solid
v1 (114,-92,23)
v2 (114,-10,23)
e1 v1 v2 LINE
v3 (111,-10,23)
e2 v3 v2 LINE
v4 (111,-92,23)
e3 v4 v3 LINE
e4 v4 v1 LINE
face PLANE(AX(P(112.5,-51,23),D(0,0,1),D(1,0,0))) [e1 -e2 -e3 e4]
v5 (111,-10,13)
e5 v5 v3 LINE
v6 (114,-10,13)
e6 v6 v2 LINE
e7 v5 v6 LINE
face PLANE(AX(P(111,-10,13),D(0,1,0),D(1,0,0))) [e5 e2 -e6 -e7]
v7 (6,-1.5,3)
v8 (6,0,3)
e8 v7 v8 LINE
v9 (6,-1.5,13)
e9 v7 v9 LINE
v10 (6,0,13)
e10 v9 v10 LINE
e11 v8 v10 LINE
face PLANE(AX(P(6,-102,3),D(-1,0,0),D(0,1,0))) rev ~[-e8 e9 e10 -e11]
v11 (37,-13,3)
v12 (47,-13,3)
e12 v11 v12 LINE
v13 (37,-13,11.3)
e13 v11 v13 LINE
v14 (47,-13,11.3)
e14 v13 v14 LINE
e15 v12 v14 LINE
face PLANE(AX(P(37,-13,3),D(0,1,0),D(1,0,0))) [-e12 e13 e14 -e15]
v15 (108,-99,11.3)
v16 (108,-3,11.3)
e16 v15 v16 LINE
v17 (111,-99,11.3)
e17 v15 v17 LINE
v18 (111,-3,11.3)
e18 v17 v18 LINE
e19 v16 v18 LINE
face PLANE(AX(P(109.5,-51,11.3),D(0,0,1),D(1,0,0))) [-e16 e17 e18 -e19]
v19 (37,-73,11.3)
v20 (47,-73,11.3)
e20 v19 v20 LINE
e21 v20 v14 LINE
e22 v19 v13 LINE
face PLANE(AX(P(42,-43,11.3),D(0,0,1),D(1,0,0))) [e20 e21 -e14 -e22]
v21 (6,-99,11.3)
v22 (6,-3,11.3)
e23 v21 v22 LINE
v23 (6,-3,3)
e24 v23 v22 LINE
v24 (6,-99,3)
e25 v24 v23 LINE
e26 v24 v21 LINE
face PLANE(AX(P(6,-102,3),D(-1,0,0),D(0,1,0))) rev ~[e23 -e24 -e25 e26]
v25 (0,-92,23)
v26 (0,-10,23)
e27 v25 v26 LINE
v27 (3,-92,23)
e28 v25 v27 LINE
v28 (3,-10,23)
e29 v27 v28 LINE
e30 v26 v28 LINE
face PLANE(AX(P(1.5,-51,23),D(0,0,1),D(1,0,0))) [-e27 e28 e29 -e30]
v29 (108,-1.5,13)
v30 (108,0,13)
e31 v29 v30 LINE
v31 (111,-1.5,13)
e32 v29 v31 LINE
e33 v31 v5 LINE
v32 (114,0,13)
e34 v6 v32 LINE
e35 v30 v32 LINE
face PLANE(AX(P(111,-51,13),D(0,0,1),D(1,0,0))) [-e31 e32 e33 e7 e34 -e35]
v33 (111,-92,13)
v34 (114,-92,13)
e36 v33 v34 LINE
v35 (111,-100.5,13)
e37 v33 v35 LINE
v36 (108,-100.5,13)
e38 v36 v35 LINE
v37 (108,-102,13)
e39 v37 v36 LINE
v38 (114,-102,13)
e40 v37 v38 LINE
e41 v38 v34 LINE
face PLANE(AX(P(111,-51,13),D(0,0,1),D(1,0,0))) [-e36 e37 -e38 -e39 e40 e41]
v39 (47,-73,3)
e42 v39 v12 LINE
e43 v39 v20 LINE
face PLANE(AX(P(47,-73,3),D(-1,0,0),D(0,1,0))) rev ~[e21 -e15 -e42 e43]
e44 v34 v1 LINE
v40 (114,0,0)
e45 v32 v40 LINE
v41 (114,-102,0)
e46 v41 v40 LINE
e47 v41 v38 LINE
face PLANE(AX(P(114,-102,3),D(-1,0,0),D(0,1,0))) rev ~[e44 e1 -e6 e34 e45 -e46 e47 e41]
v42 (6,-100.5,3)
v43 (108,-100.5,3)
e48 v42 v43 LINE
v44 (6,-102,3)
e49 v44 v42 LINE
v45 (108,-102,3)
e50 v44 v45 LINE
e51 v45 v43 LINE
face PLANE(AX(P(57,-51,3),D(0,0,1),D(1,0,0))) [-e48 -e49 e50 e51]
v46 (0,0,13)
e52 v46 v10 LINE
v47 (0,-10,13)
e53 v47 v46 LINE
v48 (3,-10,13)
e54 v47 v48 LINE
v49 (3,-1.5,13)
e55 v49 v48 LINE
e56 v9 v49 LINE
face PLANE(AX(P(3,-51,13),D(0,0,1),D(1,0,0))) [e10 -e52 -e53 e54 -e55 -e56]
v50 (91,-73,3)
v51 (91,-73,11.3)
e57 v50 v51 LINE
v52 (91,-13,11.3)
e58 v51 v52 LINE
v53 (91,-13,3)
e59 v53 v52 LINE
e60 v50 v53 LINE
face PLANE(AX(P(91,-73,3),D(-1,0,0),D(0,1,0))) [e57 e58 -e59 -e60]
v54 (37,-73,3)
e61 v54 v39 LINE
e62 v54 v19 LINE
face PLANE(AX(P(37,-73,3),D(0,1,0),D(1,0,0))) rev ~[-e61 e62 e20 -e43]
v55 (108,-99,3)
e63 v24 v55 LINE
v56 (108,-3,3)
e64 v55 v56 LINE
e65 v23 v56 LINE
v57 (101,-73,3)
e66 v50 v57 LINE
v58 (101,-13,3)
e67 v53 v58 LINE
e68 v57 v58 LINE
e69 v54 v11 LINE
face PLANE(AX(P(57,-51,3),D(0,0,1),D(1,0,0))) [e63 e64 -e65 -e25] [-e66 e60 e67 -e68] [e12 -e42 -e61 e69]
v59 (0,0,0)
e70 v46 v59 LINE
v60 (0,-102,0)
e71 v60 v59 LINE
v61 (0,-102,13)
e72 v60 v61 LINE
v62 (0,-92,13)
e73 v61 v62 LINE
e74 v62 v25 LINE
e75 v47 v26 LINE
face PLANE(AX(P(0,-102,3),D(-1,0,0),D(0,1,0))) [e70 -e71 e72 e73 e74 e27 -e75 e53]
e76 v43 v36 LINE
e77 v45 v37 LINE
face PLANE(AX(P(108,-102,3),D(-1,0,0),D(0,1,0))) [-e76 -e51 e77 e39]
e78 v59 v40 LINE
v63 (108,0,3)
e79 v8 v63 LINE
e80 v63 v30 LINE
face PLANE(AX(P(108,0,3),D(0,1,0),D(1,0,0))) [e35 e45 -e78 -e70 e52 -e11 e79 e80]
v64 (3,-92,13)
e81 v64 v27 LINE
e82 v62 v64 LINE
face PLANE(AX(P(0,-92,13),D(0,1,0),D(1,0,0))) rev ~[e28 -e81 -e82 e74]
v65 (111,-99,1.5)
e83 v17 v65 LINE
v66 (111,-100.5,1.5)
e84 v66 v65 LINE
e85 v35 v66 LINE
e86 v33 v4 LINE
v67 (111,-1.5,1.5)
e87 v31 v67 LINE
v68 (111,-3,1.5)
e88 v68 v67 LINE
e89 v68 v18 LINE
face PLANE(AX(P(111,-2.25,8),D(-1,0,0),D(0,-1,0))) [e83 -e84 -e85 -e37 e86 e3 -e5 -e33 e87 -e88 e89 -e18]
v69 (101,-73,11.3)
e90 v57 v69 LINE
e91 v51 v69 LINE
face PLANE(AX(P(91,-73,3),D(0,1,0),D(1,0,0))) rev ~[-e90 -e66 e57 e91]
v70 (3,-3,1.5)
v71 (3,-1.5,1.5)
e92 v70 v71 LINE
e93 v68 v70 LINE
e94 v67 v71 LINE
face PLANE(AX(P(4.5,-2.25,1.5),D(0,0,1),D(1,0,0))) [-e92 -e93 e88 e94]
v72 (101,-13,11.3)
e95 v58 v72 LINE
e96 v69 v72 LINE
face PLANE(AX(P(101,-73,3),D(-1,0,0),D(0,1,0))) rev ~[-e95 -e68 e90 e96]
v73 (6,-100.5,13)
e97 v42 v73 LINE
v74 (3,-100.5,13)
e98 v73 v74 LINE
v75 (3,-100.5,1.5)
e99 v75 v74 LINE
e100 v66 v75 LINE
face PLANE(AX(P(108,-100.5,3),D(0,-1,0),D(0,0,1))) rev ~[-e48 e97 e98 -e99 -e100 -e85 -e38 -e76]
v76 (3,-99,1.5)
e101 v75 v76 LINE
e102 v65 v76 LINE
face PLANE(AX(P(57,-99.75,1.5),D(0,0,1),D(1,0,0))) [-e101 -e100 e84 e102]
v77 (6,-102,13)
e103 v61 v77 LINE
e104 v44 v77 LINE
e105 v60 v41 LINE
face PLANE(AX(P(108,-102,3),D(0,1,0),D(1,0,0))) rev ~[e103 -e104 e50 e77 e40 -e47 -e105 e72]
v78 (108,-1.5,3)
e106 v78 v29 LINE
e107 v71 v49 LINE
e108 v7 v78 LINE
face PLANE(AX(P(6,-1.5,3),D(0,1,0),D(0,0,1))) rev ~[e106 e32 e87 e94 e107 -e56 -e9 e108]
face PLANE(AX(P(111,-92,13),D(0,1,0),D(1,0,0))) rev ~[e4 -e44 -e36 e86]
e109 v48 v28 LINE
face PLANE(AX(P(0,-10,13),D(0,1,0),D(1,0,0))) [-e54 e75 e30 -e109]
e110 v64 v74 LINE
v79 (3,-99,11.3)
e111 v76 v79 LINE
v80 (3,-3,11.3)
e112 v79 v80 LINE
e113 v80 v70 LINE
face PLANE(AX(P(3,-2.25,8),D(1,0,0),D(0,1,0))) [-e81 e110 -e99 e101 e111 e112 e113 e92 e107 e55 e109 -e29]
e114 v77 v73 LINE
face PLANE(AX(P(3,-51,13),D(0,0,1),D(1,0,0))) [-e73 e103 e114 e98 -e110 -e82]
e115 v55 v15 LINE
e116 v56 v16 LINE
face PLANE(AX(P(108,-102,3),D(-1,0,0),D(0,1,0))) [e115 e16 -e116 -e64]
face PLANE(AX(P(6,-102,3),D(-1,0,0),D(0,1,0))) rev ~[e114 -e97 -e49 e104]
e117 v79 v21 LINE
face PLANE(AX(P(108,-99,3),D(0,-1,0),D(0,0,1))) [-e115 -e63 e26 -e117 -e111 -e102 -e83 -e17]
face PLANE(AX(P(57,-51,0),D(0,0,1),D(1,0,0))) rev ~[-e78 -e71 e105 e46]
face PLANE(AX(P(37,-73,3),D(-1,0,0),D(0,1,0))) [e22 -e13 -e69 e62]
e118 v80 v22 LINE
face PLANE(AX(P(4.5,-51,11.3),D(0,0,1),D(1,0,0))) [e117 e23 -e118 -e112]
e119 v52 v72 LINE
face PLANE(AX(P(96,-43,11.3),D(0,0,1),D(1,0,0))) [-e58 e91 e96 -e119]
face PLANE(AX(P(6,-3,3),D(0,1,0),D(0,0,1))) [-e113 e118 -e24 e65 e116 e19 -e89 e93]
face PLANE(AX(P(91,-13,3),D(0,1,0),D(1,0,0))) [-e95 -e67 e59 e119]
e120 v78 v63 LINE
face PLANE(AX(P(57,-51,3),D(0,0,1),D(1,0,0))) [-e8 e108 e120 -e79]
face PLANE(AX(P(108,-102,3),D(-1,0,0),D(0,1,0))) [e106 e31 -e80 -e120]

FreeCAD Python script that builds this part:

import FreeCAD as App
import Part
import Sketcher
from FreeCAD import Vector


def add_polygon(sketch, points):
    """Adds a closed chain of lines whose ends are joined by coincident constraints."""
    first, n = sketch.GeometryCount, len(points)
    for a, b in zip(points, points[1:] + points[:1]):
        sketch.addGeometry(Part.LineSegment(App.Vector(*a, 0), App.Vector(*b, 0)), False)
    for i in range(n):
        sketch.addConstraint(Sketcher.Constraint("Coincident", first + i, 2, first + (i + 1) % n, 1))

doc = App.newDocument("Part")
params = doc.addObject("Spreadsheet::Sheet", "Params")
for row, (alias, value) in enumerate([
    ("sketch1_width", "114 mm"),
    ("sketch1_height", "102 mm"),
    ("pad1_length", "3 mm"),
    ("sketch2_width", "6 mm"),
    ("sketch2_height", "102 mm"),
    ("pad2_length", "10 mm"),
    ("sketch3_width", "3 mm"),
    ("sketch3_height", "96 mm"),
    ("pocket1_length", "1.7 mm"),
    ("sketch4_width", "6 mm"),
    ("sketch4_height", "102 mm"),
    ("pad3_length", "10 mm"),
    ("sketch5_width", "3 mm"),
    ("sketch5_height", "96 mm"),
    ("pocket2_length", "1.7 mm"),
    ("sketch6_height", "10 mm"),
    ("sketch6_width", "1.5 mm"),
    ("pocket3_length", "3 mm"),
    ("sketch7_height", "10 mm"),
    ("sketch7_width", "1.5 mm"),
    ("pocket4_length", "3 mm"),
    ("sketch8_height", "10 mm"),
    ("sketch8_width", "1.5 mm"),
    ("pocket5_length", "3 mm"),
    ("sketch9_height", "10 mm"),
    ("sketch9_width", "1.5 mm"),
    ("pocket6_length", "3 mm"),
    ("sketch10_width", "3 mm"),
    ("sketch10_height", "82 mm"),
    ("pad4_length", "10 mm"),
    ("sketch11_width", "3 mm"),
    ("sketch11_height", "82 mm"),
    ("pad5_length", "10 mm"),
    ("sketch12_width", "10 mm"),
    ("sketch12_height", "60 mm"),
    ("pad6_length", "8.3 mm"),
    ("sketch13_width", "10 mm"),
    ("sketch13_height", "60 mm"),
    ("pad7_length", "8.3 mm"),
    ("sketch14_width", "102 mm"),
    ("sketch14_height", "1.5 mm"),
    ("pocket7_length", "1.5 mm"),
    ("sketch15_width", "102 mm"),
    ("sketch15_height", "1.5 mm"),
    ("pocket8_length", "1.5 mm"),
    ("sketch16_width", "3 mm"),
    ("sketch16_height", "1.5 mm"),
    ("pocket9_length", "1.5 mm"),
    ("sketch17_width", "3 mm"),
    ("sketch17_height", "1.5 mm"),
    ("pocket10_length", "1.5 mm"),
    ("sketch18_width", "3 mm"),
    ("sketch18_height", "1.5 mm"),
    ("pocket11_length", "1.5 mm"),
    ("sketch19_width", "3 mm"),
    ("sketch19_height", "1.5 mm"),
    ("pocket12_length", "1.5 mm"),
], start=1):
    params.set(f"A{row}", alias)
    params.set(f"B{row}", "=" + value)
    params.setAlias(f"B{row}", alias)

body = doc.addObject("PartDesign::Body", "Body")

# Sketch on XY plane
sketch1 = body.newObject("Sketcher::SketchObject", "Sketch")
sketch1.AttachmentSupport = (doc.getObject("XY_Plane"), [""])
sketch1.MapMode = "FlatFace"
add_polygon(sketch1, [(0, 0), (0, -102), (114, -102), (114, 0)])  # lines 0-3
sketch1.addConstraint([
    Sketcher.Constraint("Vertical", 0),
    Sketcher.Constraint("Horizontal", 1),
    Sketcher.Constraint("Vertical", 2),
    Sketcher.Constraint("Horizontal", 3),
    Sketcher.Constraint("Coincident", 3, 2, -1, 1),
    Sketcher.Constraint("DistanceX", 1, 1, 1, 2, 114.0),
    Sketcher.Constraint("DistanceY", 0, 2, 0, 1, 102.0),
])
sketch1.setExpression("Constraints[9]", "Params.sketch1_width")
sketch1.setExpression("Constraints[10]", "Params.sketch1_height")
pad1 = body.newObject("PartDesign::Pad", "Pad")
pad1.Profile = sketch1
pad1.setExpression("Length", "Params.pad1_length")

# Sketch on XY plane
sketch2 = body.newObject("Sketcher::SketchObject", "Sketch001")
sketch2.AttachmentSupport = (doc.getObject("XY_Plane"), [""])
sketch2.MapMode = "FlatFace"
sketch2.AttachmentOffset = App.Placement(Vector(0, 0, 3), App.Rotation())
add_polygon(sketch2, [(0, 0), (0, -102), (6, -102), (6, 0)])  # lines 0-3
sketch2.addConstraint([
    Sketcher.Constraint("Vertical", 0),
    Sketcher.Constraint("Horizontal", 1),
    Sketcher.Constraint("Vertical", 2),
    Sketcher.Constraint("Horizontal", 3),
    Sketcher.Constraint("Coincident", 3, 2, -1, 1),
    Sketcher.Constraint("DistanceX", 1, 1, 1, 2, 6.0),
    Sketcher.Constraint("DistanceY", 0, 2, 0, 1, 102.0),
])
sketch2.setExpression("Constraints[9]", "Params.sketch2_width")
sketch2.setExpression("Constraints[10]", "Params.sketch2_height")
pad2 = body.newObject("PartDesign::Pad", "Pad001")
pad2.Profile = sketch2
pad2.setExpression("Length", "Params.pad2_length")

# Sketch on XY plane
sketch3 = body.newObject("Sketcher::SketchObject", "Sketch002")
sketch3.AttachmentSupport = (doc.getObject("XY_Plane"), [""])
sketch3.MapMode = "FlatFace"
sketch3.AttachmentOffset = App.Placement(Vector(0, 0, 13), App.Rotation())
add_polygon(sketch3, [(3, -3), (3, -99), (6, -99), (6, -3)])  # lines 0-3
sketch3.addConstraint([
    Sketcher.Constraint("Vertical", 0),
    Sketcher.Constraint("Horizontal", 1),
    Sketcher.Constraint("Vertical", 2),
    Sketcher.Constraint("Horizontal", 3),
    Sketcher.Constraint("DistanceX", 1, 1, 1, 2, 3.0),
    Sketcher.Constraint("DistanceY", 0, 2, 0, 1, 96.0),
    Sketcher.Constraint("DistanceX", -1, 1, 0, 2, 3.0),
    Sketcher.Constraint("DistanceY", 0, 2, -1, 1, 99.0),
])
sketch3.setExpression("Constraints[8]", "Params.sketch3_width")
sketch3.setExpression("Constraints[9]", "Params.sketch3_height")
pocket1 = body.newObject("PartDesign::Pocket", "Pocket")
pocket1.Profile = sketch3
pocket1.setExpression("Length", "Params.pocket1_length")

# Sketch on XY plane
sketch4 = body.newObject("Sketcher::SketchObject", "Sketch003")
sketch4.AttachmentSupport = (doc.getObject("XY_Plane"), [""])
sketch4.MapMode = "FlatFace"
sketch4.AttachmentOffset = App.Placement(Vector(0, 0, 3), App.Rotation())
add_polygon(sketch4, [(108, 0), (108, -102), (114, -102), (114, 0)])  # lines 0-3
sketch4.addConstraint([
    Sketcher.Constraint("Vertical", 0),
    Sketcher.Constraint("Horizontal", 1),
    Sketcher.Constraint("Vertical", 2),
    Sketcher.Constraint("Horizontal", 3),
    Sketcher.Constraint("PointOnObject", 2, 2, -1),
    Sketcher.Constraint("DistanceX", 1, 1, 1, 2, 6.0),
    Sketcher.Constraint("DistanceY", 0, 2, 0, 1, 102.0),
    Sketcher.Constraint("DistanceX", -1, 1, 0, 2, 108.0),
])
sketch4.setExpression("Constraints[9]", "Params.sketch4_width")
sketch4.setExpression("Constraints[10]", "Params.sketch4_height")
pad3 = body.newObject("PartDesign::Pad", "Pad002")
pad3.Profile = sketch4
pad3.setExpression("Length", "Params.pad3_length")

# Sketch on XY plane
sketch5 = body.newObject("Sketcher::SketchObject", "Sketch004")
sketch5.AttachmentSupport = (doc.getObject("XY_Plane"), [""])
sketch5.MapMode = "FlatFace"
sketch5.AttachmentOffset = App.Placement(Vector(0, 0, 13), App.Rotation())
add_polygon(sketch5, [(108, -3), (108, -99), (111, -99), (111, -3)])  # lines 0-3
sketch5.addConstraint([
    Sketcher.Constraint("Vertical", 0),
    Sketcher.Constraint("Horizontal", 1),
    Sketcher.Constraint("Vertical", 2),
    Sketcher.Constraint("Horizontal", 3),
    Sketcher.Constraint("DistanceX", 1, 1, 1, 2, 3.0),
    Sketcher.Constraint("DistanceY", 0, 2, 0, 1, 96.0),
    Sketcher.Constraint("DistanceX", -1, 1, 0, 2, 108.0),
    Sketcher.Constraint("DistanceY", 0, 2, -1, 1, 99.0),
])
sketch5.setExpression("Constraints[8]", "Params.sketch5_width")
sketch5.setExpression("Constraints[9]", "Params.sketch5_height")
pocket2 = body.newObject("PartDesign::Pocket", "Pocket001")
pocket2.Profile = sketch5
pocket2.setExpression("Length", "Params.pocket2_length")

# Sketch on YZ plane
sketch6 = body.newObject("Sketcher::SketchObject", "Sketch005")
sketch6.AttachmentSupport = (doc.getObject("YZ_Plane"), [""])
sketch6.MapMode = "FlatFace"
sketch6.AttachmentOffset = App.Placement(Vector(0, 0, 6), App.Rotation())
add_polygon(sketch6, [(-3, 13), (-3, 3), (-1.5, 3), (-1.5, 13)])  # lines 0-3
sketch6.addConstraint([
    Sketcher.Constraint("Vertical", 0),
    Sketcher.Constraint("Horizontal", 1),
    Sketcher.Constraint("Vertical", 2),
    Sketcher.Constraint("Horizontal", 3),
    Sketcher.Constraint("DistanceY", 0, 2, 0, 1, 10.0),
    Sketcher.Constraint("DistanceX", 1, 1, 1, 2, 1.5),
    Sketcher.Constraint("DistanceX", 0, 2, -1, 1, 3.0),
    Sketcher.Constraint("DistanceY", -1, 1, 0, 2, 3.0),
])
sketch6.setExpression("Constraints[8]", "Params.sketch6_height")
sketch6.setExpression("Constraints[9]", "Params.sketch6_width")
pocket3 = body.newObject("PartDesign::Pocket", "Pocket002")
pocket3.Profile = sketch6
pocket3.setExpression("Length", "Params.pocket3_length")

# Sketch on YZ plane
sketch7 = body.newObject("Sketcher::SketchObject", "Sketch006")
sketch7.AttachmentSupport = (doc.getObject("YZ_Plane"), [""])
sketch7.MapMode = "FlatFace"
sketch7.AttachmentOffset = App.Placement(Vector(0, 0, 6), App.Rotation())
add_polygon(sketch7, [(-100.5, 13), (-100.5, 3), (-99, 3), (-99, 13)])  # lines 0-3
sketch7.addConstraint([
    Sketcher.Constraint("Vertical", 0),
    Sketcher.Constraint("Horizontal", 1),
    Sketcher.Constraint("Vertical", 2),
    Sketcher.Constraint("Horizontal", 3),
    Sketcher.Constraint("DistanceY", 0, 2, 0, 1, 10.0),
    Sketcher.Constraint("DistanceX", 1, 1, 1, 2, 1.5),
    Sketcher.Constraint("DistanceY", -1, 1, 0, 2, 3.0),
    Sketcher.Constraint("DistanceX", 1, 2, -1, 1, 99.0),
])
sketch7.setExpression("Constraints[8]", "Params.sketch7_height")
sketch7.setExpression("Constraints[9]", "Params.sketch7_width")
pocket4 = body.newObject("PartDesign::Pocket", "Pocket003")
pocket4.Profile = sketch7
pocket4.setExpression("Length", "Params.pocket4_length")

# Sketch on YZ plane
sketch8 = body.newObject("Sketcher::SketchObject", "Sketch007")
sketch8.AttachmentSupport = (doc.getObject("YZ_Plane"), [""])
sketch8.MapMode = "FlatFace"
sketch8.AttachmentOffset = App.Placement(Vector(0, 0, 108), App.Rotation())
add_polygon(sketch8, [(-1.5, 13), (-1.5, 3), (-3, 3), (-3, 13)])  # lines 0-3
sketch8.addConstraint([
    Sketcher.Constraint("Vertical", 0),
    Sketcher.Constraint("Horizontal", 1),
    Sketcher.Constraint("Vertical", 2),
    Sketcher.Constraint("Horizontal", 3),
    Sketcher.Constraint("DistanceY", 0, 2, 0, 1, 10.0),
    Sketcher.Constraint("DistanceX", 1, 2, 1, 1, 1.5),
    Sketcher.Constraint("DistanceY", -1, 1, 0, 2, 3.0),
    Sketcher.Constraint("DistanceX", 1, 2, -1, 1, 3.0),
])
sketch8.setExpression("Constraints[8]", "Params.sketch8_height")
sketch8.setExpression("Constraints[9]", "Params.sketch8_width")
pocket5 = body.newObject("PartDesign::Pocket", "Pocket004")
pocket5.Profile = sketch8
pocket5.setExpression("Length", "Params.pocket5_length")
pocket5.Reversed = True

# Sketch on YZ plane
sketch9 = body.newObject("Sketcher::SketchObject", "Sketch008")
sketch9.AttachmentSupport = (doc.getObject("YZ_Plane"), [""])
sketch9.MapMode = "FlatFace"
sketch9.AttachmentOffset = App.Placement(Vector(0, 0, 108), App.Rotation())
add_polygon(sketch9, [(-99, 13), (-99, 3), (-100.5, 3), (-100.5, 13)])  # lines 0-3
sketch9.addConstraint([
    Sketcher.Constraint("Vertical", 0),
    Sketcher.Constraint("Horizontal", 1),
    Sketcher.Constraint("Vertical", 2),
    Sketcher.Constraint("Horizontal", 3),
    Sketcher.Constraint("DistanceY", 0, 2, 0, 1, 10.0),
    Sketcher.Constraint("DistanceX", 1, 2, 1, 1, 1.5),
    Sketcher.Constraint("DistanceX", 0, 2, -1, 1, 99.0),
    Sketcher.Constraint("DistanceY", -1, 1, 0, 2, 3.0),
])
sketch9.setExpression("Constraints[8]", "Params.sketch9_height")
sketch9.setExpression("Constraints[9]", "Params.sketch9_width")
pocket6 = body.newObject("PartDesign::Pocket", "Pocket005")
pocket6.Profile = sketch9
pocket6.setExpression("Length", "Params.pocket6_length")
pocket6.Reversed = True

# Sketch on XY plane
sketch10 = body.newObject("Sketcher::SketchObject", "Sketch009")
sketch10.AttachmentSupport = (doc.getObject("XY_Plane"), [""])
sketch10.MapMode = "FlatFace"
sketch10.AttachmentOffset = App.Placement(Vector(0, 0, 13), App.Rotation())
add_polygon(sketch10, [(0, -10), (0, -92), (3, -92), (3, -10)])  # lines 0-3
sketch10.addConstraint([
    Sketcher.Constraint("Vertical", 0),
    Sketcher.Constraint("Horizontal", 1),
    Sketcher.Constraint("Vertical", 2),
    Sketcher.Constraint("Horizontal", 3),
    Sketcher.Constraint("PointOnObject", 0, 2, -2),
    Sketcher.Constraint("DistanceX", 1, 1, 1, 2, 3.0),
    Sketcher.Constraint("DistanceY", 0, 2, 0, 1, 82.0),
    Sketcher.Constraint("DistanceY", 0, 2, -1, 1, 92.0),
])
sketch10.setExpression("Constraints[9]", "Params.sketch10_width")
sketch10.setExpression("Constraints[10]", "Params.sketch10_height")
pad4 = body.newObject("PartDesign::Pad", "Pad003")
pad4.Profile = sketch10
pad4.setExpression("Length", "Params.pad4_length")

# Sketch on XY plane
sketch11 = body.newObject("Sketcher::SketchObject", "Sketch010")
sketch11.AttachmentSupport = (doc.getObject("XY_Plane"), [""])
sketch11.MapMode = "FlatFace"
sketch11.AttachmentOffset = App.Placement(Vector(0, 0, 13), App.Rotation())
add_polygon(sketch11, [(111, -10), (111, -92), (114, -92), (114, -10)])  # lines 0-3
sketch11.addConstraint([
    Sketcher.Constraint("Vertical", 0),
    Sketcher.Constraint("Horizontal", 1),
    Sketcher.Constraint("Vertical", 2),
    Sketcher.Constraint("Horizontal", 3),
    Sketcher.Constraint("DistanceX", 1, 1, 1, 2, 3.0),
    Sketcher.Constraint("DistanceY", 0, 2, 0, 1, 82.0),
    Sketcher.Constraint("DistanceX", -1, 1, 0, 2, 111.0),
    Sketcher.Constraint("DistanceY", 0, 2, -1, 1, 92.0),
])
sketch11.setExpression("Constraints[8]", "Params.sketch11_width")
sketch11.setExpression("Constraints[9]", "Params.sketch11_height")
pad5 = body.newObject("PartDesign::Pad", "Pad004")
pad5.Profile = sketch11
pad5.setExpression("Length", "Params.pad5_length")

# Sketch on XY plane
sketch12 = body.newObject("Sketcher::SketchObject", "Sketch011")
sketch12.AttachmentSupport = (doc.getObject("XY_Plane"), [""])
sketch12.MapMode = "FlatFace"
sketch12.AttachmentOffset = App.Placement(Vector(0, 0, 3), App.Rotation())
add_polygon(sketch12, [(91, -13), (91, -73), (101, -73), (101, -13)])  # lines 0-3
sketch12.addConstraint([
    Sketcher.Constraint("Vertical", 0),
    Sketcher.Constraint("Horizontal", 1),
    Sketcher.Constraint("Vertical", 2),
    Sketcher.Constraint("Horizontal", 3),
    Sketcher.Constraint("DistanceX", 1, 1, 1, 2, 10.0),
    Sketcher.Constraint("DistanceY", 0, 2, 0, 1, 60.0),
    Sketcher.Constraint("DistanceX", -1, 1, 0, 2, 91.0),
    Sketcher.Constraint("DistanceY", 0, 2, -1, 1, 73.0),
])
sketch12.setExpression("Constraints[8]", "Params.sketch12_width")
sketch12.setExpression("Constraints[9]", "Params.sketch12_height")
pad6 = body.newObject("PartDesign::Pad", "Pad005")
pad6.Profile = sketch12
pad6.setExpression("Length", "Params.pad6_length")

# Sketch on XY plane
sketch13 = body.newObject("Sketcher::SketchObject", "Sketch012")
sketch13.AttachmentSupport = (doc.getObject("XY_Plane"), [""])
sketch13.MapMode = "FlatFace"
sketch13.AttachmentOffset = App.Placement(Vector(0, 0, 3), App.Rotation())
add_polygon(sketch13, [(37, -13), (37, -73), (47, -73), (47, -13)])  # lines 0-3
sketch13.addConstraint([
    Sketcher.Constraint("Vertical", 0),
    Sketcher.Constraint("Horizontal", 1),
    Sketcher.Constraint("Vertical", 2),
    Sketcher.Constraint("Horizontal", 3),
    Sketcher.Constraint("DistanceX", 1, 1, 1, 2, 10.0),
    Sketcher.Constraint("DistanceY", 0, 2, 0, 1, 60.0),
    Sketcher.Constraint("DistanceX", -1, 1, 0, 2, 37.0),
    Sketcher.Constraint("DistanceY", 0, 2, -1, 1, 73.0),
])
sketch13.setExpression("Constraints[8]", "Params.sketch13_width")
sketch13.setExpression("Constraints[9]", "Params.sketch13_height")
pad7 = body.newObject("PartDesign::Pad", "Pad006")
pad7.Profile = sketch13
pad7.setExpression("Length", "Params.pad7_length")

# Sketch on XY plane
sketch14 = body.newObject("Sketcher::SketchObject", "Sketch013")
sketch14.AttachmentSupport = (doc.getObject("XY_Plane"), [""])
sketch14.MapMode = "FlatFace"
sketch14.AttachmentOffset = App.Placement(Vector(0, 0, 3), App.Rotation())
add_polygon(sketch14, [(6, -99), (6, -100.5), (108, -100.5), (108, -99)])  # lines 0-3
sketch14.addConstraint([
    Sketcher.Constraint("Vertical", 0),
    Sketcher.Constraint("Horizontal", 1),
    Sketcher.Constraint("Vertical", 2),
    Sketcher.Constraint("Horizontal", 3),
    Sketcher.Constraint("DistanceX", 1, 1, 1, 2, 102.0),
    Sketcher.Constraint("DistanceY", 0, 2, 0, 1, 1.5),
    Sketcher.Constraint("DistanceX", -1, 1, 0, 2, 6.0),
    Sketcher.Constraint("DistanceY", 2, 2, -1, 1, 99.0),
])
sketch14.setExpression("Constraints[8]", "Params.sketch14_width")
sketch14.setExpression("Constraints[9]", "Params.sketch14_height")
pocket7 = body.newObject("PartDesign::Pocket", "Pocket006")
pocket7.Profile = sketch14
pocket7.setExpression("Length", "Params.pocket7_length")

# Sketch on XY plane
sketch15 = body.newObject("Sketcher::SketchObject", "Sketch014")
sketch15.AttachmentSupport = (doc.getObject("XY_Plane"), [""])
sketch15.MapMode = "FlatFace"
sketch15.AttachmentOffset = App.Placement(Vector(0, 0, 3), App.Rotation())
add_polygon(sketch15, [(6, -1.5), (6, -3), (108, -3), (108, -1.5)])  # lines 0-3
sketch15.addConstraint([
    Sketcher.Constraint("Vertical", 0),
    Sketcher.Constraint("Horizontal", 1),
    Sketcher.Constraint("Vertical", 2),
    Sketcher.Constraint("Horizontal", 3),
    Sketcher.Constraint("DistanceX", 1, 1, 1, 2, 102.0),
    Sketcher.Constraint("DistanceY", 0, 2, 0, 1, 1.5),
    Sketcher.Constraint("DistanceX", -1, 1, 0, 2, 6.0),
    Sketcher.Constraint("DistanceY", 0, 2, -1, 1, 3.0),
])
sketch15.setExpression("Constraints[8]", "Params.sketch15_width")
sketch15.setExpression("Constraints[9]", "Params.sketch15_height")
pocket8 = body.newObject("PartDesign::Pocket", "Pocket007")
pocket8.Profile = sketch15
pocket8.setExpression("Length", "Params.pocket8_length")

# Sketch on XY plane
sketch16 = body.newObject("Sketcher::SketchObject", "Sketch015")
sketch16.AttachmentSupport = (doc.getObject("XY_Plane"), [""])
sketch16.MapMode = "FlatFace"
sketch16.AttachmentOffset = App.Placement(Vector(0, 0, 3), App.Rotation())
add_polygon(sketch16, [(3, -99), (3, -100.5), (6, -100.5), (6, -99)])  # lines 0-3
sketch16.addConstraint([
    Sketcher.Constraint("Vertical", 0),
    Sketcher.Constraint("Horizontal", 1),
    Sketcher.Constraint("Vertical", 2),
    Sketcher.Constraint("Horizontal", 3),
    Sketcher.Constraint("DistanceX", 1, 1, 1, 2, 3.0),
    Sketcher.Constraint("DistanceY", 0, 2, 0, 1, 1.5),
    Sketcher.Constraint("DistanceX", -1, 1, 0, 2, 3.0),
    Sketcher.Constraint("DistanceY", 2, 2, -1, 1, 99.0),
])
sketch16.setExpression("Constraints[8]", "Params.sketch16_width")
sketch16.setExpression("Constraints[9]", "Params.sketch16_height")
pocket9 = body.newObject("PartDesign::Pocket", "Pocket008")
pocket9.Profile = sketch16
pocket9.setExpression("Length", "Params.pocket9_length")

# Sketch on XY plane
sketch17 = body.newObject("Sketcher::SketchObject", "Sketch016")
sketch17.AttachmentSupport = (doc.getObject("XY_Plane"), [""])
sketch17.MapMode = "FlatFace"
sketch17.AttachmentOffset = App.Placement(Vector(0, 0, 3), App.Rotation())
add_polygon(sketch17, [(3, -1.5), (3, -3), (6, -3), (6, -1.5)])  # lines 0-3
sketch17.addConstraint([
    Sketcher.Constraint("Vertical", 0),
    Sketcher.Constraint("Horizontal", 1),
    Sketcher.Constraint("Vertical", 2),
    Sketcher.Constraint("Horizontal", 3),
    Sketcher.Constraint("DistanceX", 1, 1, 1, 2, 3.0),
    Sketcher.Constraint("DistanceY", 0, 2, 0, 1, 1.5),
    Sketcher.Constraint("DistanceX", -1, 1, 0, 2, 3.0),
    Sketcher.Constraint("DistanceY", 0, 2, -1, 1, 3.0),
])
sketch17.setExpression("Constraints[8]", "Params.sketch17_width")
sketch17.setExpression("Constraints[9]", "Params.sketch17_height")
pocket10 = body.newObject("PartDesign::Pocket", "Pocket009")
pocket10.Profile = sketch17
pocket10.setExpression("Length", "Params.pocket10_length")

# Sketch on XY plane
sketch18 = body.newObject("Sketcher::SketchObject", "Sketch017")
sketch18.AttachmentSupport = (doc.getObject("XY_Plane"), [""])
sketch18.MapMode = "FlatFace"
sketch18.AttachmentOffset = App.Placement(Vector(0, 0, 3), App.Rotation())
add_polygon(sketch18, [(108, -99), (108, -100.5), (111, -100.5), (111, -99)])  # lines 0-3
sketch18.addConstraint([
    Sketcher.Constraint("Vertical", 0),
    Sketcher.Constraint("Horizontal", 1),
    Sketcher.Constraint("Vertical", 2),
    Sketcher.Constraint("Horizontal", 3),
    Sketcher.Constraint("DistanceX", 1, 1, 1, 2, 3.0),
    Sketcher.Constraint("DistanceY", 0, 2, 0, 1, 1.5),
    Sketcher.Constraint("DistanceX", -1, 1, 0, 2, 108.0),
    Sketcher.Constraint("DistanceY", 2, 2, -1, 1, 99.0),
])
sketch18.setExpression("Constraints[8]", "Params.sketch18_width")
sketch18.setExpression("Constraints[9]", "Params.sketch18_height")
pocket11 = body.newObject("PartDesign::Pocket", "Pocket010")
pocket11.Profile = sketch18
pocket11.setExpression("Length", "Params.pocket11_length")

# Sketch on XY plane
sketch19 = body.newObject("Sketcher::SketchObject", "Sketch018")
sketch19.AttachmentSupport = (doc.getObject("XY_Plane"), [""])
sketch19.MapMode = "FlatFace"
sketch19.AttachmentOffset = App.Placement(Vector(0, 0, 3), App.Rotation())
add_polygon(sketch19, [(108, -1.5), (108, -3), (111, -3), (111, -1.5)])  # lines 0-3
sketch19.addConstraint([
    Sketcher.Constraint("Vertical", 0),
    Sketcher.Constraint("Horizontal", 1),
    Sketcher.Constraint("Vertical", 2),
    Sketcher.Constraint("Horizontal", 3),
    Sketcher.Constraint("DistanceX", 1, 1, 1, 2, 3.0),
    Sketcher.Constraint("DistanceY", 0, 2, 0, 1, 1.5),
    Sketcher.Constraint("DistanceX", -1, 1, 0, 2, 108.0),
    Sketcher.Constraint("DistanceY", 0, 2, -1, 1, 3.0),
])
sketch19.setExpression("Constraints[8]", "Params.sketch19_width")
sketch19.setExpression("Constraints[9]", "Params.sketch19_height")
pocket12 = body.newObject("PartDesign::Pocket", "Pocket011")
pocket12.Profile = sketch19
pocket12.setExpression("Length", "Params.pocket12_length")

doc.recompute()
